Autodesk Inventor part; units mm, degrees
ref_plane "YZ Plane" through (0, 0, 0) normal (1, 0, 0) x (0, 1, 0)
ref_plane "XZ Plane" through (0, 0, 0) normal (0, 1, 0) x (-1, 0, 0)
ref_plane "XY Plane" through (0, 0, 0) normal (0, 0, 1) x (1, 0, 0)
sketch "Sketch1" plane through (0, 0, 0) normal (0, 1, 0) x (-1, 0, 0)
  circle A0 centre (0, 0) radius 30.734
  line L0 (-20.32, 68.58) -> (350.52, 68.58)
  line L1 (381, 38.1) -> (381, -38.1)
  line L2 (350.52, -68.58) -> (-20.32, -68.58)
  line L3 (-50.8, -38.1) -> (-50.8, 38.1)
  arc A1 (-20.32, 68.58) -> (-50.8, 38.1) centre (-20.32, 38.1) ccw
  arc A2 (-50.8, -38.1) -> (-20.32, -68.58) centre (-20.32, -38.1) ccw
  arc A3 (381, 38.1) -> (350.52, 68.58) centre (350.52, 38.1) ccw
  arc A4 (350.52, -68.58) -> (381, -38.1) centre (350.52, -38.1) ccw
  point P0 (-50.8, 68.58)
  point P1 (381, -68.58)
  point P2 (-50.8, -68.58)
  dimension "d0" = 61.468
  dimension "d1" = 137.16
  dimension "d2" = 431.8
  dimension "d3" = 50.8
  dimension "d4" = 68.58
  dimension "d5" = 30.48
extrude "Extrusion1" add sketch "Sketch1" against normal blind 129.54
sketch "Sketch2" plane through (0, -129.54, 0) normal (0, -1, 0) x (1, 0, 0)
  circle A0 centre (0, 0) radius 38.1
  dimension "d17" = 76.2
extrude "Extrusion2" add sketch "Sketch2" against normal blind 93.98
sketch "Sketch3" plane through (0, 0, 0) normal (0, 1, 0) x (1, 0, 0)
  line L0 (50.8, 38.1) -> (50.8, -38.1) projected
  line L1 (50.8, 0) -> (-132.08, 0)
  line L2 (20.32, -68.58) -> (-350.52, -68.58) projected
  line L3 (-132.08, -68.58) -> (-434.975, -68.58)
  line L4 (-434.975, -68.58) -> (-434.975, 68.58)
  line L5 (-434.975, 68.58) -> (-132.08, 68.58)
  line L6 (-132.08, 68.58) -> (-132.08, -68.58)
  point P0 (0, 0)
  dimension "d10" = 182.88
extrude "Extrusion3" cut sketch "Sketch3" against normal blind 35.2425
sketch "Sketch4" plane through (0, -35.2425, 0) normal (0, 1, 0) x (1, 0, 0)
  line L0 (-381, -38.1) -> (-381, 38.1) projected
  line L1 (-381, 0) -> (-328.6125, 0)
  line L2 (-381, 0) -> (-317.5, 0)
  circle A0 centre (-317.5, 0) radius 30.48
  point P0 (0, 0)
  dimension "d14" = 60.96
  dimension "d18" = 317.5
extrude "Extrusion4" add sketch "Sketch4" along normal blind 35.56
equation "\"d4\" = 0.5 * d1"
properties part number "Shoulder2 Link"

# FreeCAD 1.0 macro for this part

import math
import FreeCAD as App
import Part
import Sketcher
from FreeCAD import Vector
Q = App.Units.Quantity


def add_polygon(sketch, points):
    """Adds a closed chain of lines whose ends are joined by coincident constraints."""
    first, n = sketch.GeometryCount, len(points)
    for a, b in zip(points, points[1:] + points[:1]):
        sketch.addGeometry(Part.LineSegment(App.Vector(*a, 0), App.Vector(*b, 0)), False)
    for i in range(n):
        sketch.addConstraint(Sketcher.Constraint("Coincident", first + i, 2, first + (i + 1) % n, 1))

doc = App.newDocument("Part")
body = doc.addObject("PartDesign::Body", "Body")

sketch1 = body.newObject("Sketcher::SketchObject", "Sketch")
sketch1.AttachmentSupport = (doc.getObject("XZ_Plane"), [""])
sketch1.MapMode = "FlatFace"
sketch1.addGeometry([
    Part.LineSegment(Vector(-351, 69, 0), Vector(20, 69, 0)),
    Part.ArcOfCircle(Part.Circle(Vector(20, 38, 0), Vector(0, 0, 1), 30), math.radians(0), math.radians(90)),
    Part.LineSegment(Vector(51, 38, 0), Vector(51, -38, 0)),
    Part.ArcOfCircle(Part.Circle(Vector(20, -38, 0), Vector(0, 0, 1), 30), math.radians(-90), math.radians(0)),
    Part.LineSegment(Vector(20, -69, 0), Vector(-351, -69, 0)),
    Part.ArcOfCircle(Part.Circle(Vector(-351, -38, 0), Vector(0, 0, 1), 30), math.radians(180), math.radians(270)),
    Part.LineSegment(Vector(-381, -38, 0), Vector(-381, 38, 0)),
    Part.ArcOfCircle(Part.Circle(Vector(-351, 38, 0), Vector(0, 0, 1), 30), math.radians(90), math.radians(180)),
    Part.Circle(Vector(0, 0, 0), Vector(0, 0, 1), 31),
], False)
sketch1.addConstraint([
    Sketcher.Constraint("Tangent", 0, 2, 1, 2),
    Sketcher.Constraint("Tangent", 1, 1, 2, 1),
    Sketcher.Constraint("Tangent", 2, 2, 3, 2),
    Sketcher.Constraint("Tangent", 3, 1, 4, 1),
    Sketcher.Constraint("Tangent", 4, 2, 5, 2),
    Sketcher.Constraint("Tangent", 5, 1, 6, 1),
    Sketcher.Constraint("Tangent", 6, 2, 7, 2),
    Sketcher.Constraint("Tangent", 7, 1, 0, 1),
    Sketcher.Constraint("Horizontal", 0),
    Sketcher.Constraint("Vertical", 2),
    Sketcher.Constraint("Horizontal", 4),
    Sketcher.Constraint("Vertical", 6),
    Sketcher.Constraint("Coincident", 8, 3, -1, 1),
    Sketcher.Constraint("Equal", 1, 3),
    Sketcher.Constraint("Equal", 3, 5),
    Sketcher.Constraint("Equal", 5, 7),
    Sketcher.Constraint("Radius", 1, Q("1.2 in")),
    Sketcher.Constraint("Diameter", 8, Q("2.42 in")),
    Sketcher.Constraint("DistanceX", -1, 1, 1, 1, Q("2 in")),
    Sketcher.Constraint("DistanceY", -1, 1, 0, 2, Q("2.7 in")),
    Sketcher.Constraint("DistanceY", 3, 1, -1, 1, Q("2.7 in")),
    Sketcher.Constraint("DistanceX", 0, 1, 0, 2, Q("14.6 in")),
])
pad1 = body.newObject("PartDesign::Pad", "Pad")
pad1.Profile = sketch1
pad1.Length = Q("5.1 in")

sketch2 = body.newObject("Sketcher::SketchObject", "Sketch001")
sketch2.AttachmentSupport = (doc.getObject("XZ_Plane"), [""])
sketch2.MapMode = "FlatFace"
sketch2.AttachmentOffset = App.Placement(Vector(0, 0, 5.1 * 25.4), App.Rotation())
sketch2.addGeometry(Part.Circle(Vector(0, 0, 0), Vector(0, 0, 1), 38), False)
sketch2.addConstraint([
    Sketcher.Constraint("Coincident", 0, 3, -1, 1),
    Sketcher.Constraint("Diameter", 0, Q("3 in")),
])
pad2 = body.newObject("PartDesign::Pad", "Pad001")
pad2.Profile = sketch2
pad2.Length = Q("3.7 in")
pad2.Reversed = True

sketch3 = body.newObject("Sketcher::SketchObject", "Sketch002")
sketch3.AttachmentSupport = (doc.getObject("XZ_Plane"), [""])
sketch3.MapMode = "FlatFace"
add_polygon(sketch3, [(-435, 69), (-132, 69), (-132, -69), (-435, -69)])
sketch3.addConstraint([
    Sketcher.Constraint("Horizontal", 0),
    Sketcher.Constraint("Vertical", 1),
    Sketcher.Constraint("Horizontal", 2),
    Sketcher.Constraint("Vertical", 3),
    Sketcher.Constraint("DistanceY", 1, 2, 1, 1, Q("5.4 in")),
    Sketcher.Constraint("DistanceX", 0, 2, -1, 1, Q("5.2 in")),
    Sketcher.Constraint("DistanceY", -1, 1, 0, 2, Q("2.7 in")),
    Sketcher.Constraint("DistanceX", 0, 1, 0, 2, Q("11.925 in")),
])
pocket1 = body.newObject("PartDesign::Pocket", "Pocket")
pocket1.Profile = sketch3
pocket1.Length = Q("1.3875 in")
pocket1.Reversed = True

sketch4 = body.newObject("Sketcher::SketchObject", "Sketch003")
sketch4.AttachmentSupport = (doc.getObject("XZ_Plane"), [""])
sketch4.MapMode = "FlatFace"
sketch4.AttachmentOffset = App.Placement(Vector(0, 0, 1.3875 * 25.4), App.Rotation())
sketch4.addGeometry(Part.Circle(Vector(-318, 0, 0), Vector(0, 0, 1), 30), False)
sketch4.addConstraint([
    Sketcher.Constraint("PointOnObject", 0, 3, -1),
    Sketcher.Constraint("Diameter", 0, Q("2.4 in")),
    Sketcher.Constraint("DistanceX", 0, 3, -1, 1, Q("12.5 in")),
])
pad3 = body.newObject("PartDesign::Pad", "Pad002")
pad3.Profile = sketch4
pad3.Length = Q("1.4 in")
pad3.Reversed = True

doc.recompute()
